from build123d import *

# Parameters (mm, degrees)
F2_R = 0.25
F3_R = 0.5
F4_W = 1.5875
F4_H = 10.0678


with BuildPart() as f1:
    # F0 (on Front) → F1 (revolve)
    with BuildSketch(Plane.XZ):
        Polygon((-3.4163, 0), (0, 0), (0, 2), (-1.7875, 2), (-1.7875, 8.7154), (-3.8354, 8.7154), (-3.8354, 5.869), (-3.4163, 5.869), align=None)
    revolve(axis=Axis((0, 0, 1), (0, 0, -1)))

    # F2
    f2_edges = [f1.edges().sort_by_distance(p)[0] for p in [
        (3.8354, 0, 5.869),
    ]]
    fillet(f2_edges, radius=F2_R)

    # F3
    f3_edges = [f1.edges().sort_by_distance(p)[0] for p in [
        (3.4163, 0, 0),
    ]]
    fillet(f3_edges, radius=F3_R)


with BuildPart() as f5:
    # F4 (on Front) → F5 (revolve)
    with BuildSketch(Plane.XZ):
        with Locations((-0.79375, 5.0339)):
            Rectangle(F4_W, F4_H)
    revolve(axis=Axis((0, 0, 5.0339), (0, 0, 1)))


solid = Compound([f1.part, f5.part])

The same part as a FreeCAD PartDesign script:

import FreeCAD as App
import Part
import Sketcher


def edges_at(feature, points):
    """Names of the edges that pass closest to the given points."""
    edges = feature.Shape.Edges
    near = lambda p: min(range(len(edges)), key=lambda i: edges[i].distToShape(Part.Vertex(*p))[0])
    return sorted({f"Edge{near(p) + 1}" for p in points})

doc = App.newDocument("Part")
body = doc.addObject("PartDesign::Body", "Body")

sketch1 = body.newObject("Sketcher::SketchObject", "Sketch")
sketch1.AttachmentSupport = (doc.getObject("XZ_Plane"), [""])
sketch1.MapMode = "FlatFace"
sketch1.addGeometry(Part.LineSegment(App.Vector(-3.4163, 0, 0), App.Vector(0, 0, 0)), False)
sketch1.addGeometry(Part.LineSegment(App.Vector(0, 0, 0), App.Vector(0, 2, 0)), False)
sketch1.addGeometry(Part.LineSegment(App.Vector(0, 2, 0), App.Vector(-1.7875, 2, 0)), False)
sketch1.addGeometry(Part.LineSegment(App.Vector(-1.7875, 2, 0), App.Vector(-1.7875, 8.7154, 0)), False)
sketch1.addGeometry(Part.LineSegment(App.Vector(-1.7875, 8.7154, 0), App.Vector(-3.8354, 8.7154, 0)), False)
sketch1.addGeometry(Part.LineSegment(App.Vector(-3.8354, 8.7154, 0), App.Vector(-3.8354, 5.869, 0)), False)
sketch1.addGeometry(Part.LineSegment(App.Vector(-3.8354, 5.869, 0), App.Vector(-3.4163, 5.869, 0)), False)
sketch1.addGeometry(Part.LineSegment(App.Vector(-3.4163, 5.869, 0), App.Vector(-3.4163, 0, 0)), False)
sketch1.addConstraint(Sketcher.Constraint("Coincident", 0, 2, 1, 1))
sketch1.addConstraint(Sketcher.Constraint("Coincident", 1, 2, 2, 1))
sketch1.addConstraint(Sketcher.Constraint("Coincident", 2, 2, 3, 1))
sketch1.addConstraint(Sketcher.Constraint("Coincident", 3, 2, 4, 1))
sketch1.addConstraint(Sketcher.Constraint("Coincident", 4, 2, 5, 1))
sketch1.addConstraint(Sketcher.Constraint("Coincident", 5, 2, 6, 1))
sketch1.addConstraint(Sketcher.Constraint("Coincident", 6, 2, 7, 1))
sketch1.addConstraint(Sketcher.Constraint("Coincident", 7, 2, 0, 1))
sketch1.addConstraint(Sketcher.Constraint("Horizontal", 0))
sketch1.addConstraint(Sketcher.Constraint("Vertical", 1))
sketch1.addConstraint(Sketcher.Constraint("Horizontal", 2))
sketch1.addConstraint(Sketcher.Constraint("Vertical", 3))
sketch1.addConstraint(Sketcher.Constraint("Horizontal", 4))
sketch1.addConstraint(Sketcher.Constraint("Vertical", 5))
sketch1.addConstraint(Sketcher.Constraint("Horizontal", 6))
sketch1.addConstraint(Sketcher.Constraint("Vertical", 7))
sketch1.addConstraint(Sketcher.Constraint("Coincident", 0, 2, -1, 1))
sketch1.addConstraint(Sketcher.Constraint("DistanceY", 1, 1, 1, 2, 2.0))
sketch1.addConstraint(Sketcher.Constraint("DistanceY", 7, 2, 7, 1, 5.869))
sketch1.addConstraint(Sketcher.Constraint("DistanceX", 0, 1, 0, 2, 3.4163))
sketch1.addConstraint(Sketcher.Constraint("DistanceX", 2, 2, 2, 1, 1.7875))
sketch1.addConstraint(Sketcher.Constraint("DistanceX", 4, 2, 4, 1, 2.0479))
sketch1.addConstraint(Sketcher.Constraint("DistanceY", 3, 1, 3, 2, 6.7154))
revolution = body.newObject("PartDesign::Revolution", "Revolution")
revolution.Profile = sketch1
revolution.ReferenceAxis = (sketch1, ["V_Axis"])
revolution.Angle = 360
doc.recompute()

fillet = body.newObject("PartDesign::Fillet", "Fillet")
fillet.Base = (revolution, edges_at(revolution, [(3.835, 0, 5.869)]))
fillet.Radius = 0.25
doc.recompute()

fillet2 = body.newObject("PartDesign::Fillet", "Fillet001")
fillet2.Base = (fillet, edges_at(fillet, [(3.416, 0, 0)]))
fillet2.Radius = 0.5
body2 = doc.addObject("PartDesign::Body", "Body001")

sketch2 = body2.newObject("Sketcher::SketchObject", "Sketch001")
sketch2.AttachmentSupport = (doc.getObject("XZ_Plane001"), [""])
sketch2.MapMode = "FlatFace"
sketch2.addGeometry(Part.LineSegment(App.Vector(-1.5875, 10.0678, 0), App.Vector(-1.5875, 0, 0)), False)
sketch2.addGeometry(Part.LineSegment(App.Vector(-1.5875, 0, 0), App.Vector(0, 0, 0)), False)
sketch2.addGeometry(Part.LineSegment(App.Vector(0, 0, 0), App.Vector(0, 10.0678, 0)), False)
sketch2.addGeometry(Part.LineSegment(App.Vector(0, 10.0678, 0), App.Vector(-1.5875, 10.0678, 0)), False)
sketch2.addConstraint(Sketcher.Constraint("Coincident", 0, 2, 1, 1))
sketch2.addConstraint(Sketcher.Constraint("Coincident", 1, 2, 2, 1))
sketch2.addConstraint(Sketcher.Constraint("Coincident", 2, 2, 3, 1))
sketch2.addConstraint(Sketcher.Constraint("Coincident", 3, 2, 0, 1))
sketch2.addConstraint(Sketcher.Constraint("Vertical", 0))
sketch2.addConstraint(Sketcher.Constraint("Horizontal", 1))
sketch2.addConstraint(Sketcher.Constraint("Vertical", 2))
sketch2.addConstraint(Sketcher.Constraint("Horizontal", 3))
sketch2.addConstraint(Sketcher.Constraint("Coincident", 1, 2, -1, 1))
sketch2.addConstraint(Sketcher.Constraint("DistanceX", 1, 1, 1, 2, 1.5875))
sketch2.addConstraint(Sketcher.Constraint("DistanceY", 0, 2, 0, 1, 10.0678))
revolution2 = body2.newObject("PartDesign::Revolution", "Revolution001")
revolution2.Profile = sketch2
revolution2.ReferenceAxis = (sketch2, ["V_Axis"])
revolution2.Angle = 360

doc.recompute()
